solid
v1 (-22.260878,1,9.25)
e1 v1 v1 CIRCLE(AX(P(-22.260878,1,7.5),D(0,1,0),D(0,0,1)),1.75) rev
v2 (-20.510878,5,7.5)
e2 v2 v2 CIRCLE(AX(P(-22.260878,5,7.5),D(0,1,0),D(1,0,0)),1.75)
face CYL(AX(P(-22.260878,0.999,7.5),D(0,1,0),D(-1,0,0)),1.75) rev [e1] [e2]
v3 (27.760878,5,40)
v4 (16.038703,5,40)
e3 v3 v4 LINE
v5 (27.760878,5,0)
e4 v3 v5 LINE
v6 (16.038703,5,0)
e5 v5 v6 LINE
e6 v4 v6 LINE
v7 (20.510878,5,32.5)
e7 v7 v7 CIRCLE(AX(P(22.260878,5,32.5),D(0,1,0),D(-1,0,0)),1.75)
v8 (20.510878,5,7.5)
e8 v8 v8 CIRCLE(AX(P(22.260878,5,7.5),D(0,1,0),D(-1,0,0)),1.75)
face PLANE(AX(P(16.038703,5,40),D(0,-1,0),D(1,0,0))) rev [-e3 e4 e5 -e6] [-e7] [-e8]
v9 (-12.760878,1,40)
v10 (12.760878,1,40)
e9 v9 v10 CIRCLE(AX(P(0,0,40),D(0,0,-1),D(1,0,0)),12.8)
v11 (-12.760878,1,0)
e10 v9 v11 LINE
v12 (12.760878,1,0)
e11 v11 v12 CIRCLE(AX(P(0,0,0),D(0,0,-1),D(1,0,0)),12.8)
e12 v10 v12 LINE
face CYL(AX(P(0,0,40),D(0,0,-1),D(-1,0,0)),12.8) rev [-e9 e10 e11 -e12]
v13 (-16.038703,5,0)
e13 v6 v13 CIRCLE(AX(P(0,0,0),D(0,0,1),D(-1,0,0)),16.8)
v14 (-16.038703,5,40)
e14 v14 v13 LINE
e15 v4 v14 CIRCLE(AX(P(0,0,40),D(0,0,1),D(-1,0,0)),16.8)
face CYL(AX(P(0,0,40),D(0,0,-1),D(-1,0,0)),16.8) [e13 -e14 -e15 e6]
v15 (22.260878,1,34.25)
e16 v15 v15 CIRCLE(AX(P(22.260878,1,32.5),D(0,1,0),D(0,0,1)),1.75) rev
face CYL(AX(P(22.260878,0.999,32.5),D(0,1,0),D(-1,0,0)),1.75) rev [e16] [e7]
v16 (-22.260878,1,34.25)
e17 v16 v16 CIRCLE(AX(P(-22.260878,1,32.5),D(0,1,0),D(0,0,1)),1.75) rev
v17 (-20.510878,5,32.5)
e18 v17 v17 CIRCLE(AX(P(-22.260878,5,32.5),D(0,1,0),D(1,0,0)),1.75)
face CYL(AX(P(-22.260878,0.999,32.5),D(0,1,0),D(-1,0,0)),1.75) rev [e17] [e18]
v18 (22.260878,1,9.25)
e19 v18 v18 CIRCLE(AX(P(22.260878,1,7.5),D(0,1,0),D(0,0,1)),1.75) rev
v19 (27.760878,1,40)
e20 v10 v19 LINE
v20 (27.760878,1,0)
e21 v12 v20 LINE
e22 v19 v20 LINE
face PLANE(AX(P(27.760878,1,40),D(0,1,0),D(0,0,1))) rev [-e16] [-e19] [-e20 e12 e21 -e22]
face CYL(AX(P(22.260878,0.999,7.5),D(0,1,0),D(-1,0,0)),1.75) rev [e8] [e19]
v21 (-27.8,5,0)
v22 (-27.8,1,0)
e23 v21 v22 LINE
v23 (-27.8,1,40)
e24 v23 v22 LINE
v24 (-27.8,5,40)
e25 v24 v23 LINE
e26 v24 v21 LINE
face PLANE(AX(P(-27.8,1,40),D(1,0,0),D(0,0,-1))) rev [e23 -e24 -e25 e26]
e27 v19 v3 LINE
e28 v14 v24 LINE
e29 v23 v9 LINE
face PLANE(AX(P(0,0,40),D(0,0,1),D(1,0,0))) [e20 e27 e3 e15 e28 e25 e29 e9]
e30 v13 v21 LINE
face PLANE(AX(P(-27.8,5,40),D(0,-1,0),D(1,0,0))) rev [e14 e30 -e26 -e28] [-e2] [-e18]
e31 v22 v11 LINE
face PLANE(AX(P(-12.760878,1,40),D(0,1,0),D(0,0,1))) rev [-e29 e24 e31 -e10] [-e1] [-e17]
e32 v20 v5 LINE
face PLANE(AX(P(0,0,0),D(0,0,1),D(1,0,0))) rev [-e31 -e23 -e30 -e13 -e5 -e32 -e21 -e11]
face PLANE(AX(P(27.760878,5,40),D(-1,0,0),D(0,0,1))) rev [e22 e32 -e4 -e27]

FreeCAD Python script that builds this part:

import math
import FreeCAD as App
import Part
import Sketcher
from FreeCAD import Vector

doc = App.newDocument("Part")
body = doc.addObject("PartDesign::Body", "Body")

# Sketch on XY plane
sketch1 = doc.addObject("Sketcher::SketchObject", "Sketch")
body.addObject(sketch1)
sketch1.AttachmentSupport = (doc.XY_Plane, [""])
sketch1.MapMode = "FlatFace"
sketch1.addGeometry([
    Part.LineSegment(Vector(-27.8, 1, 0), Vector(-12.8, 1, 0)),  # 0
    Part.ArcOfCircle(Part.Circle(Vector(0, 0, 0), Vector(0, 0, 1), 12.8), math.radians(4), math.radians(176)),  # 1
    Part.LineSegment(Vector(12.8, 1, 0), Vector(27.8, 1, 0)),  # 2
    Part.LineSegment(Vector(27.8, 1, 0), Vector(27.8, 5, 0)),  # 3
    Part.LineSegment(Vector(27.8, 5, 0), Vector(16, 5, 0)),  # 4
    Part.ArcOfCircle(Part.Circle(Vector(0, 0, 0), Vector(0, 0, 1), 16.8), math.radians(17), math.radians(163)),  # 5
    Part.LineSegment(Vector(-16, 5, 0), Vector(-27.8, 5, 0)),  # 6
    Part.LineSegment(Vector(-27.8, 5, 0), Vector(-27.8, 1, 0)),  # 7
], False)
sketch1.addConstraint([
    Sketcher.Constraint("Coincident", 0, 2, 1, 2),
    Sketcher.Constraint("Coincident", 1, 1, 2, 1),
    Sketcher.Constraint("Coincident", 2, 2, 3, 1),
    Sketcher.Constraint("Coincident", 3, 2, 4, 1),
    Sketcher.Constraint("Coincident", 4, 2, 5, 1),
    Sketcher.Constraint("Coincident", 5, 2, 6, 1),
    Sketcher.Constraint("Coincident", 6, 2, 7, 1),
    Sketcher.Constraint("Coincident", 7, 2, 0, 1),
    Sketcher.Constraint("Horizontal", 0),
    Sketcher.Constraint("Horizontal", 2),
    Sketcher.Constraint("Vertical", 3),
    Sketcher.Constraint("Horizontal", 4),
    Sketcher.Constraint("Horizontal", 6),
    Sketcher.Constraint("Vertical", 7),
    Sketcher.Constraint("Coincident", 1, 3, -1, 1),
    Sketcher.Constraint("Coincident", 5, 3, -1, 1),
    Sketcher.Constraint("Horizontal", 0, 2, 1, 1),
    Sketcher.Constraint("Horizontal", 4, 2, 5, 2),
    Sketcher.Constraint("Radius", 1, 12.8),
    Sketcher.Constraint("Radius", 5, 16.8),
    Sketcher.Constraint("DistanceX", 2, 1, 2, 2, 15.0),
    Sketcher.Constraint("DistanceY", 3, 1, 3, 2, 4.0),
    Sketcher.Constraint("DistanceY", -1, 1, 0, 2, 1.0),
    Sketcher.Constraint("DistanceX", 6, 2, -1, 1, 27.8),
])
pad1 = doc.addObject("PartDesign::Pad", "Pad")
body.addObject(pad1)
pad1.Profile = sketch1
pad1.Length = 40

# Sketch on XZ plane
sketch2 = doc.addObject("Sketcher::SketchObject", "Sketch001")
body.addObject(sketch2)
sketch2.AttachmentSupport = (doc.XZ_Plane, [""])
sketch2.MapMode = "FlatFace"
sketch2.AttachmentOffset = App.Placement(Vector(0, 0, -5), App.Rotation())
sketch2.addGeometry(Part.Circle(Vector(22.3, 32.5, 0), Vector(0, 0, 1), 1.8), False)
sketch2.addConstraint([
    Sketcher.Constraint("Diameter", 0, 3.5),
    Sketcher.Constraint("DistanceY", -1, 1, 0, 3, 32.5),
    Sketcher.Constraint("DistanceX", -1, 1, 0, 3, 22.260878),
])
pocket1 = doc.addObject("PartDesign::Pocket", "Pocket")
body.addObject(pocket1)
pocket1.Profile = sketch2
pocket1.Type = "UpToFirst"
pocket1.Reversed = True

# Sketch on XZ plane
sketch3 = doc.addObject("Sketcher::SketchObject", "Sketch002")
body.addObject(sketch3)
sketch3.AttachmentSupport = (doc.XZ_Plane, [""])
sketch3.MapMode = "FlatFace"
sketch3.AttachmentOffset = App.Placement(Vector(0, 0, -5), App.Rotation())
sketch3.addGeometry(Part.Circle(Vector(22.3, 7.5, 0), Vector(0, 0, 1), 1.8), False)
sketch3.addConstraint([
    Sketcher.Constraint("Diameter", 0, 3.5),
    Sketcher.Constraint("DistanceY", -1, 1, 0, 3, 7.5),
    Sketcher.Constraint("DistanceX", -1, 1, 0, 3, 22.260878),
])
pocket2 = doc.addObject("PartDesign::Pocket", "Pocket001")
body.addObject(pocket2)
pocket2.Profile = sketch3
pocket2.Type = "UpToFirst"
pocket2.Reversed = True

# Sketch on XZ plane
sketch4 = doc.addObject("Sketcher::SketchObject", "Sketch003")
body.addObject(sketch4)
sketch4.AttachmentSupport = (doc.XZ_Plane, [""])
sketch4.MapMode = "FlatFace"
sketch4.AttachmentOffset = App.Placement(Vector(0, 0, -5), App.Rotation())
sketch4.addGeometry(Part.Circle(Vector(-22.3, 7.5, 0), Vector(0, 0, 1), 1.8), False)
sketch4.addConstraint([
    Sketcher.Constraint("Diameter", 0, 3.5),
    Sketcher.Constraint("DistanceY", -1, 1, 0, 3, 7.5),
    Sketcher.Constraint("DistanceX", 0, 3, -1, 1, 22.260878),
])
pocket3 = doc.addObject("PartDesign::Pocket", "Pocket002")
body.addObject(pocket3)
pocket3.Profile = sketch4
pocket3.Type = "UpToFirst"
pocket3.Reversed = True

# Sketch on XZ plane
sketch5 = doc.addObject("Sketcher::SketchObject", "Sketch004")
body.addObject(sketch5)
sketch5.AttachmentSupport = (doc.XZ_Plane, [""])
sketch5.MapMode = "FlatFace"
sketch5.AttachmentOffset = App.Placement(Vector(0, 0, -5), App.Rotation())
sketch5.addGeometry(Part.Circle(Vector(-22.3, 32.5, 0), Vector(0, 0, 1), 1.8), False)
sketch5.addConstraint([
    Sketcher.Constraint("Diameter", 0, 3.5),
    Sketcher.Constraint("DistanceY", -1, 1, 0, 3, 32.5),
    Sketcher.Constraint("DistanceX", 0, 3, -1, 1, 22.260878),
])
pocket4 = doc.addObject("PartDesign::Pocket", "Pocket003")
body.addObject(pocket4)
pocket4.Profile = sketch5
pocket4.Type = "UpToFirst"
pocket4.Reversed = True

doc.recompute()
